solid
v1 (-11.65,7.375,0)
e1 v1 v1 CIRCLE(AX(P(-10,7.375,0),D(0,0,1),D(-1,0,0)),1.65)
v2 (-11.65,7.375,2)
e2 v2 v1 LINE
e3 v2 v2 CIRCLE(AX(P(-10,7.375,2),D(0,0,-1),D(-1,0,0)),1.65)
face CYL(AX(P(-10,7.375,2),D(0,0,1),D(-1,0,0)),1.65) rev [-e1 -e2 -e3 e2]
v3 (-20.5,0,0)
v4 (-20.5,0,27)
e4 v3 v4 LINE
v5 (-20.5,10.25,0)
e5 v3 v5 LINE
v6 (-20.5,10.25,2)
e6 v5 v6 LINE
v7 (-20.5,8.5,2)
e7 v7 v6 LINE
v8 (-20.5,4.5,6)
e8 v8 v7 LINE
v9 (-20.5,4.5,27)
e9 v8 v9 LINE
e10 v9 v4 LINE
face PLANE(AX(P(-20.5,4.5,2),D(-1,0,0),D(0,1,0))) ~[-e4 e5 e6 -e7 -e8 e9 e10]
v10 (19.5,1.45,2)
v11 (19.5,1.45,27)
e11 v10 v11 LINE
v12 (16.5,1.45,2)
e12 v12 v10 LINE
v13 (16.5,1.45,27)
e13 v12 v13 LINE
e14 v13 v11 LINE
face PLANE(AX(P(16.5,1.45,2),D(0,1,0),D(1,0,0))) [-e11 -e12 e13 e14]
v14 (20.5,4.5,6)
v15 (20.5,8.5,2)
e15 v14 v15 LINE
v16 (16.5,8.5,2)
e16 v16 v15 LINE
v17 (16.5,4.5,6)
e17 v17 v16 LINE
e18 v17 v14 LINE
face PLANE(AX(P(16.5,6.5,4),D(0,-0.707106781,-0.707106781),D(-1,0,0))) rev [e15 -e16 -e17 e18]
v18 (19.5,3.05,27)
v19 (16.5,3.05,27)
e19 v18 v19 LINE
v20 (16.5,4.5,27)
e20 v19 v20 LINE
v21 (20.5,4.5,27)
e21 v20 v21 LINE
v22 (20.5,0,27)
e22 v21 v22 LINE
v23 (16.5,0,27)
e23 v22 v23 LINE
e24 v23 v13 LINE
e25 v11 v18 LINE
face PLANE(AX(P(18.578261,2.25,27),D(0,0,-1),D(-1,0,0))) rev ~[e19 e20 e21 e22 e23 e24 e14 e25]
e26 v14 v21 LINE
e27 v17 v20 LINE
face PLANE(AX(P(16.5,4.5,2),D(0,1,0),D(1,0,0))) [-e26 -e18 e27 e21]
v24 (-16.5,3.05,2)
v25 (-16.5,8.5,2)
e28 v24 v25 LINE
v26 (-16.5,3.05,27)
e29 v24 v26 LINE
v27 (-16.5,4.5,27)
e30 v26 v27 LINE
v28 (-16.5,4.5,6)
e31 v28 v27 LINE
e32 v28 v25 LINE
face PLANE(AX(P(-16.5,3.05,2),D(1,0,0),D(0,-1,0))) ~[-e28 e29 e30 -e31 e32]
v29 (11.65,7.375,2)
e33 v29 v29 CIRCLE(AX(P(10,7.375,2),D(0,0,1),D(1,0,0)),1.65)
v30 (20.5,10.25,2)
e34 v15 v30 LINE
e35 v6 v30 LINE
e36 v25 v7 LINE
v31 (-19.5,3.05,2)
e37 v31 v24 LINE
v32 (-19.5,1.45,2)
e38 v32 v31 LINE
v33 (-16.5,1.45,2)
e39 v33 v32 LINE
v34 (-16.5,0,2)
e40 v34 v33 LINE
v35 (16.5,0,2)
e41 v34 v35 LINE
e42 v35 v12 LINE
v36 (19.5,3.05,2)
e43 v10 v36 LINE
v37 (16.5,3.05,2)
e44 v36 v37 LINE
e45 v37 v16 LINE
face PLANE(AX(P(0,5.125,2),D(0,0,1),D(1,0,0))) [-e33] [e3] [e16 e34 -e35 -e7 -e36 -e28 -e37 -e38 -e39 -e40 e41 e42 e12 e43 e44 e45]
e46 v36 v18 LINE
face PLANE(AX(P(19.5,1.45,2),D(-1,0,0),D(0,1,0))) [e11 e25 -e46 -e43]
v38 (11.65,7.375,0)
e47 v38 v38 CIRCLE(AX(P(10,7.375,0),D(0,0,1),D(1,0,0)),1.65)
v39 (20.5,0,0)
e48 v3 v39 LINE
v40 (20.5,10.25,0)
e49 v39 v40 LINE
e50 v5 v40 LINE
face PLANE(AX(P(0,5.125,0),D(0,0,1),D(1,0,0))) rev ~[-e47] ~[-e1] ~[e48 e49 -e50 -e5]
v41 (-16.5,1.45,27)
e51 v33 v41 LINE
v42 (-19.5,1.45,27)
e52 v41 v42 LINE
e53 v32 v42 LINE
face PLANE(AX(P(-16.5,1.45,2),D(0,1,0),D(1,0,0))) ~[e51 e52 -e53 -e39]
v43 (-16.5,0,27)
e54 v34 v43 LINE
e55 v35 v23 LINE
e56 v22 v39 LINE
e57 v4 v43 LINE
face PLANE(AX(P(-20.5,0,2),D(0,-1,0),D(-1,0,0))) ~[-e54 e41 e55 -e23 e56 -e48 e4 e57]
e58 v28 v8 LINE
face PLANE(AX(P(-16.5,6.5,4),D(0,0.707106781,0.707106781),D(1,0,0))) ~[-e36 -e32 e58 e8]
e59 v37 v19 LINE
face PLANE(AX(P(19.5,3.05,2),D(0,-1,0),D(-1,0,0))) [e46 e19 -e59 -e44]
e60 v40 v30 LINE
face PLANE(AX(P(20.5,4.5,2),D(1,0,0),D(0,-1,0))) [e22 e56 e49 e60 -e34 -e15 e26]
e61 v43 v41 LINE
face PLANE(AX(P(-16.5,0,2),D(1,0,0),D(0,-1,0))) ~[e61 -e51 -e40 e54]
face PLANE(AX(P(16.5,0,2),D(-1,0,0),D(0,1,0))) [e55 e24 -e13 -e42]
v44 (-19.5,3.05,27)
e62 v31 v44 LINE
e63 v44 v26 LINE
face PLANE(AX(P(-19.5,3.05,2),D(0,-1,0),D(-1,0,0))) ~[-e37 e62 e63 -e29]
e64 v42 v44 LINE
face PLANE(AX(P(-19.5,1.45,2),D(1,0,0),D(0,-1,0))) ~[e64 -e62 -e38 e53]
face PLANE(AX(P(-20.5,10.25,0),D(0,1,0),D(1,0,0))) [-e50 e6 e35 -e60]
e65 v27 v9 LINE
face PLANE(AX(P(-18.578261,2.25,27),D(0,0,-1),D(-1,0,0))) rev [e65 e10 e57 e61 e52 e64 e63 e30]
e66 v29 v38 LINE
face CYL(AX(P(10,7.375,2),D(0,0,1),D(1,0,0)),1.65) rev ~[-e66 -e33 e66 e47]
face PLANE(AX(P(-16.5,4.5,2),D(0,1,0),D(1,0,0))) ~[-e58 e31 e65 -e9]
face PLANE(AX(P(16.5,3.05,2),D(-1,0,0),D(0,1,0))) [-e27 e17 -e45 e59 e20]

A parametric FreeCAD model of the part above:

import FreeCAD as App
import Part
import Sketcher

V = App.Vector
Q = App.Units.Quantity


def edges_at(feature, points):
    """Names of the edges that pass closest to the given points."""
    edges = feature.Shape.Edges
    near = lambda p: min(range(len(edges)), key=lambda i: edges[i].distToShape(Part.Vertex(*p))[0])
    return sorted({f"Edge{near(p) + 1}" for p in points})


def add_polygon(sketch, points):
    """Adds a closed chain of lines whose ends are joined by coincident constraints."""
    first, n = sketch.GeometryCount, len(points)
    for a, b in zip(points, points[1:] + points[:1]):
        sketch.addGeometry(Part.LineSegment(App.Vector(*a, 0), App.Vector(*b, 0)), False)
    for i in range(n):
        sketch.addConstraint(Sketcher.Constraint("Coincident", first + i, 2, first + (i + 1) % n, 1))

doc = App.newDocument("Part")
params = doc.addObject("Spreadsheet::Sheet", "Params")
for row, (alias, value) in enumerate([
    ("sketch1_width", "41 mm"),
    ("sketch1_height", "10.25 mm"),
    ("pad1_length", "2 mm"),
    ("sketch2_width", "4 mm"),
    ("sketch2_width2", "3 mm"),
    ("sketch2_height", "1.6 mm"),
    ("sketch2_height2", "4.5 mm"),
    ("pad2_length", "25 mm"),
    ("sketch3_diameter", "3.3 mm"),
    ("chamfer_size", "4 mm"),
], start=1):
    params.set(f"A{row}", alias)
    params.set(f"B{row}", "=" + value)
    params.setAlias(f"B{row}", alias)

body = doc.addObject("PartDesign::Body", "Body")

# Sketch on XY plane
sketch1 = body.newObject("Sketcher::SketchObject", "Sketch")
sketch1.AttachmentSupport = (doc.getObject("XY_Plane"), [""])
sketch1.MapMode = "FlatFace"
add_polygon(sketch1, [(-20.5, 10.25), (-20.5, 0), (20.5, 0), (20.5, 10.25)])  # lines 0-3
sketch1.addConstraint([
    Sketcher.Constraint("Vertical", 0),
    Sketcher.Constraint("Horizontal", 1),
    Sketcher.Constraint("Vertical", 2),
    Sketcher.Constraint("Horizontal", 3),
    Sketcher.Constraint("Symmetric", 0, 2, 1, 2, -1, 1),
    Sketcher.Constraint("DistanceX", 1, 1, 1, 2, Q("41 mm")),
    Sketcher.Constraint("DistanceY", 0, 2, 0, 1, Q("10.25 mm")),
])
sketch1.setExpression("Constraints[9]", "Params.sketch1_width")
sketch1.setExpression("Constraints[10]", "Params.sketch1_height")
pad1 = body.newObject("PartDesign::Pad", "Pad")
pad1.Profile = sketch1
pad1.setExpression("Length", "Params.pad1_length")

# Sketch on XY plane
sketch2 = body.newObject("Sketcher::SketchObject", "Sketch001")
sketch2.AttachmentSupport = (doc.getObject("XY_Plane"), [""])
sketch2.MapMode = "FlatFace"
sketch2.AttachmentOffset = App.Placement(V(0, 0, 2), App.Rotation())
add_polygon(sketch2, [(20.5, 4.5), (16.5, 4.5), (16.5, 3.05), (19.5, 3.05), (19.5, 1.45), (16.5, 1.45), (16.5, 0), (20.5, 0)])  # lines 0-7
sketch2.addConstraint([
    Sketcher.Constraint("Horizontal", 0),
    Sketcher.Constraint("Vertical", 1),
    Sketcher.Constraint("Horizontal", 2),
    Sketcher.Constraint("Vertical", 3),
    Sketcher.Constraint("Horizontal", 4),
    Sketcher.Constraint("Vertical", 5),
    Sketcher.Constraint("Horizontal", 6),
    Sketcher.Constraint("Vertical", 7),
    Sketcher.Constraint("PointOnObject", 5, 2, -1),
    Sketcher.Constraint("Vertical", 1, 2, 4, 2),
    Sketcher.Constraint("Equal", 1, 5),
    Sketcher.Constraint("DistanceX", 0, 2, 0, 1, Q("4 mm")),
    Sketcher.Constraint("DistanceX", 2, 1, 2, 2, Q("3 mm")),
    Sketcher.Constraint("DistanceY", 3, 2, 3, 1, Q("1.6 mm")),
    Sketcher.Constraint("DistanceY", 7, 1, 7, 2, Q("4.5 mm")),
    Sketcher.Constraint("DistanceX", -1, 1, 0, 2, Q("16.5 mm")),
])
sketch2.setExpression("Constraints[19]", "Params.sketch2_width")
sketch2.setExpression("Constraints[20]", "Params.sketch2_width2")
sketch2.setExpression("Constraints[21]", "Params.sketch2_height")
sketch2.setExpression("Constraints[22]", "Params.sketch2_height2")
pad2 = body.newObject("PartDesign::Pad", "Pad001")
pad2.Profile = sketch2
pad2.setExpression("Length", "Params.pad2_length")

# Sketch on XY plane
sketch3 = body.newObject("Sketcher::SketchObject", "Sketch002")
sketch3.AttachmentSupport = (doc.getObject("XY_Plane"), [""])
sketch3.MapMode = "FlatFace"
sketch3.AttachmentOffset = App.Placement(V(0, 0, 2), App.Rotation())
sketch3.addGeometry(Part.Circle(V(10, 7.375, 0), V(0, 0, 1), 1.65), False)
sketch3.addConstraint([
    Sketcher.Constraint("Diameter", 0, Q("3.3 mm")),
    Sketcher.Constraint("DistanceX", -1, 1, 0, 3, Q("10 mm")),
    Sketcher.Constraint("DistanceY", -1, 1, 0, 3, Q("7.375 mm")),
])
sketch3.setExpression("Constraints[0]", "Params.sketch3_diameter")
pocket1 = body.newObject("PartDesign::Pocket", "Pocket")
pocket1.Profile = sketch3
pocket1.Type = "ThroughAll"
doc.recompute()

mirrored = body.newObject("PartDesign::Mirrored", "Mirrored")
mirrored.Originals = [pocket1, pad2]
mirrored.MirrorPlane = (doc.getObject("YZ_Plane"), [""])
body.Tip = mirrored
doc.recompute()

chamfer = body.newObject("PartDesign::Chamfer", "Chamfer")
chamfer.Base = (mirrored, edges_at(mirrored, [(18.5, 4.5, 2), (-18.5, 4.5, 2)]))
chamfer.setExpression("Size", "Params.chamfer_size")

doc.recompute()
